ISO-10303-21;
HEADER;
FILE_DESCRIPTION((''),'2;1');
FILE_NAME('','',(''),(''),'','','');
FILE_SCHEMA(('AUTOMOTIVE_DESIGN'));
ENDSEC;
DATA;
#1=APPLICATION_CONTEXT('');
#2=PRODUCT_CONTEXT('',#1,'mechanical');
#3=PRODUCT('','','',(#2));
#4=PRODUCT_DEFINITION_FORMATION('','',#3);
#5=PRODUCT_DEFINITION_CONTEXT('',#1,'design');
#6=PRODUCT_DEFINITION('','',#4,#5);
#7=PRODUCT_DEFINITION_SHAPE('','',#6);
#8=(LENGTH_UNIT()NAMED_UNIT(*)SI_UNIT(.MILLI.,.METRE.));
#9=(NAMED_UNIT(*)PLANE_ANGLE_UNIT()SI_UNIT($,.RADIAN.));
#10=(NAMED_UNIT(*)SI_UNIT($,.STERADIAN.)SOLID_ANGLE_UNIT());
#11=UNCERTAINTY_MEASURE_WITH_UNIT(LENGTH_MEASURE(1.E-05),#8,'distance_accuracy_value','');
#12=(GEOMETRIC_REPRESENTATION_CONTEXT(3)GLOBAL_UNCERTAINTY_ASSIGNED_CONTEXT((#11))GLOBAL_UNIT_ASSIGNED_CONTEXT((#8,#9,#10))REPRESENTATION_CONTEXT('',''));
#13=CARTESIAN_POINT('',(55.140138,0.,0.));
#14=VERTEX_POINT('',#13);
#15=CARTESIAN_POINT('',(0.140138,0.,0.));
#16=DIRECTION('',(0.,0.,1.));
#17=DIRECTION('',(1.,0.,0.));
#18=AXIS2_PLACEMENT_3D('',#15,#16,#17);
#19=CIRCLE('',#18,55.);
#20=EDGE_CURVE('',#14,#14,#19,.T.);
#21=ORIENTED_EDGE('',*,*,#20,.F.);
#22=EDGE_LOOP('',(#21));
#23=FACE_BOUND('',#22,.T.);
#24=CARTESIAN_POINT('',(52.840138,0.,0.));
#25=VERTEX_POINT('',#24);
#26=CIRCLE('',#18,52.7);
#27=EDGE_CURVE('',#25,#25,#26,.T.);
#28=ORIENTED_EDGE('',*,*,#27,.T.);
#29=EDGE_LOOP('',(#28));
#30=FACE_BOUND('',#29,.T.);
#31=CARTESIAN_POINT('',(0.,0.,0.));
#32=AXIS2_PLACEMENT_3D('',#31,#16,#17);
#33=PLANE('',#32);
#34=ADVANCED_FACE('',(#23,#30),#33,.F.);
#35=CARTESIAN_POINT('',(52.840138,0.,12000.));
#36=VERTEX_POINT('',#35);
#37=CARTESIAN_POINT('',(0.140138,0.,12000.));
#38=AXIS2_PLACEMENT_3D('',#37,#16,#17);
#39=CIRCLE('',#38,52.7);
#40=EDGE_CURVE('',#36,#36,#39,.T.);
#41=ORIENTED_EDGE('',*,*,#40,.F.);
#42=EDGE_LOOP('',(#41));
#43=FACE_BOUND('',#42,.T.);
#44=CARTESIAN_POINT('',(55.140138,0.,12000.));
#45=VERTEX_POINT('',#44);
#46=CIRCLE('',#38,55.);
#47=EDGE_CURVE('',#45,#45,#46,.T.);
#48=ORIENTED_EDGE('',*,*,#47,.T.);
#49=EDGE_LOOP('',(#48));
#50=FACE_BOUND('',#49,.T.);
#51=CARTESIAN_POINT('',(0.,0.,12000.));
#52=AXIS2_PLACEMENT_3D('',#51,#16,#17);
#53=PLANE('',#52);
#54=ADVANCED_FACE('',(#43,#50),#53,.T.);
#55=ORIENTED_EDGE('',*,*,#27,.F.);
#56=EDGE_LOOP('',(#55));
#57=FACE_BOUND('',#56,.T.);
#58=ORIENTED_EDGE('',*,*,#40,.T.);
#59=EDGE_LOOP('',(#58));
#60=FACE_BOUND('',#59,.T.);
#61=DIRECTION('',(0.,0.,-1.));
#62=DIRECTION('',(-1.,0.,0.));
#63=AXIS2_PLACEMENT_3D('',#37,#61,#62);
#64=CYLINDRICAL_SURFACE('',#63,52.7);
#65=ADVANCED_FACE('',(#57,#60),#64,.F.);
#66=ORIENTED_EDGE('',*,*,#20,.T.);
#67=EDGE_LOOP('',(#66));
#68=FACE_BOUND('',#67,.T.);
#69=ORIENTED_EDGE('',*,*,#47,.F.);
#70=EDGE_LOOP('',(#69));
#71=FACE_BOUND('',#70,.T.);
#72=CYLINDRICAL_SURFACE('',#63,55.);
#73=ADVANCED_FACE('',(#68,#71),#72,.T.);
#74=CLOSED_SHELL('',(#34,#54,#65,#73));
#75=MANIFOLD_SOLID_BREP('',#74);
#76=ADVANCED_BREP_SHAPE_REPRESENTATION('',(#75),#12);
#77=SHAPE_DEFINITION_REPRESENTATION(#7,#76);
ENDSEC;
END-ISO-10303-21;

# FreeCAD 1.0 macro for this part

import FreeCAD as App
import Part
import Sketcher
Q = App.Units.Quantity

doc = App.newDocument("Part")
params = doc.addObject("Spreadsheet::Sheet", "Params")
for row, (alias, value) in enumerate([
    ("sketch1_diameter", "110 mm"),
    ("sketch1_diameter2", "105.4 mm"),
    ("pad1_length", "12000 mm"),
], start=1):
    params.set(f"A{row}", alias)
    params.set(f"B{row}", "=" + value)
    params.setAlias(f"B{row}", alias)

body = doc.addObject("PartDesign::Body", "Body")

# Sketch on XY plane
sketch1 = body.newObject("Sketcher::SketchObject", "Sketch")
sketch1.AttachmentSupport = (doc.getObject("XY_Plane"), [""])
sketch1.MapMode = "FlatFace"
sketch1.addGeometry(Part.Circle(App.Vector(0.140138, 0, 0), App.Vector(0, 0, 1), 55), False)
sketch1.addGeometry(Part.Circle(App.Vector(0.140138, 0, 0), App.Vector(0, 0, 1), 52.7), False)
sketch1.addConstraint(Sketcher.Constraint("Coincident", 1, 3, 0, 3))
sketch1.addConstraint(Sketcher.Constraint("PointOnObject", 0, 3, -1))
sketch1.addConstraint(Sketcher.Constraint("Diameter", 0, Q("110 mm")))
sketch1.addConstraint(Sketcher.Constraint("Diameter", 1, Q("105.4 mm")))
sketch1.addConstraint(Sketcher.Constraint("DistanceX", -1, 1, 0, 3, Q("0.140138 mm")))
sketch1.setExpression("Constraints[2]", "Params.sketch1_diameter")
sketch1.setExpression("Constraints[3]", "Params.sketch1_diameter2")
pad1 = body.newObject("PartDesign::Pad", "Pad")
pad1.Profile = sketch1
pad1.setExpression("Length", "Params.pad1_length")

doc.recompute()
